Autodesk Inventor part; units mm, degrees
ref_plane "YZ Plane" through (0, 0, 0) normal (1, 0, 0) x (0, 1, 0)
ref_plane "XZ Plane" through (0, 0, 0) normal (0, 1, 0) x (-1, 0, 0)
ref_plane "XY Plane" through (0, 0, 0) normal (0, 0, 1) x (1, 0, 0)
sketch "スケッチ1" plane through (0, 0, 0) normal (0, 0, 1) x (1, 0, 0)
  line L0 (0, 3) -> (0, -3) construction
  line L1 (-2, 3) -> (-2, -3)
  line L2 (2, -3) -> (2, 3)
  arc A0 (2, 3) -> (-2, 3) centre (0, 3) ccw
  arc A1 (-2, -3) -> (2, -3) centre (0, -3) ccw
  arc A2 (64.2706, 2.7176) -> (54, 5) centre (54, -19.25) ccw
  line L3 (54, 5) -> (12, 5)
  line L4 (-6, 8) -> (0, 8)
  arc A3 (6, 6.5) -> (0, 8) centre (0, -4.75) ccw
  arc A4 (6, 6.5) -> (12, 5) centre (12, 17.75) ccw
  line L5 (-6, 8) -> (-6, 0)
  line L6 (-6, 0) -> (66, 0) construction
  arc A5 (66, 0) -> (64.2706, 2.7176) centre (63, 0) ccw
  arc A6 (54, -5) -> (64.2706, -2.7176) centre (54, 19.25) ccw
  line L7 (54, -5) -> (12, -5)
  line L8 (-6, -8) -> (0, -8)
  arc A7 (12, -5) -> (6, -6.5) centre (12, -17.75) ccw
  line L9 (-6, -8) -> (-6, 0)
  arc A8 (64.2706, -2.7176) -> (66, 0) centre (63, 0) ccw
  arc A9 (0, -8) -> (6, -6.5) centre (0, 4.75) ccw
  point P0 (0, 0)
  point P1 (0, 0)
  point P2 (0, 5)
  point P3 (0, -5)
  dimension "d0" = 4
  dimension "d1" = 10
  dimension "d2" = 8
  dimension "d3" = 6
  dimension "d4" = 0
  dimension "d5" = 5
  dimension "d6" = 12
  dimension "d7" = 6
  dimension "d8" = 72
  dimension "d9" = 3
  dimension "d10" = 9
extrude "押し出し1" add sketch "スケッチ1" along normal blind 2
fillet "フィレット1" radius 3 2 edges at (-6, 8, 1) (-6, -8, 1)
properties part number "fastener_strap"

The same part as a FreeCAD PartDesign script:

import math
import FreeCAD as App
import Part
import Sketcher
from FreeCAD import Vector
Q = App.Units.Quantity


def edges_at(feature, points):
    """Names of the edges that pass closest to the given points."""
    edges = feature.Shape.Edges
    near = lambda p: min(range(len(edges)), key=lambda i: edges[i].distToShape(Part.Vertex(*p))[0])
    return sorted({f"Edge{near(p) + 1}" for p in points})

doc = App.newDocument("Part")
body = doc.addObject("PartDesign::Body", "Body")

# Sketch on XY plane
sketch1 = body.newObject("Sketcher::SketchObject", "Sketch")
sketch1.AttachmentSupport = (doc.getObject("XY_Plane"), [""])
sketch1.MapMode = "FlatFace"
sketch1.addGeometry([
    Part.ArcOfCircle(Part.Circle(Vector(63, 0, 0), Vector(0, 0, 1), 3), math.radians(0), math.radians(65)),  # 0
    Part.ArcOfCircle(Part.Circle(Vector(54, -19.2, 0), Vector(0, 0, 1), 24.2), math.radians(65), math.radians(90)),  # 1
    Part.LineSegment(Vector(54, 5, 0), Vector(12, 5, 0)),  # 2
    Part.ArcOfCircle(Part.Circle(Vector(12, 17.8, 0), Vector(0, 0, 1), 12.8), math.radians(-118), math.radians(-90)),  # 3
    Part.ArcOfCircle(Part.Circle(Vector(0, -4.8, 0), Vector(0, 0, 1), 12.8), math.radians(62), math.radians(90)),  # 4
    Part.LineSegment(Vector(0, 8, 0), Vector(-6, 8, 0)),  # 5
    Part.LineSegment(Vector(-6, 8, 0), Vector(-6, -8, 0)),  # 6
    Part.LineSegment(Vector(-6, -8, 0), Vector(0, -8, 0)),  # 7
    Part.ArcOfCircle(Part.Circle(Vector(0, 4.8, 0), Vector(0, 0, 1), 12.8), math.radians(-90), math.radians(-62)),  # 8
    Part.ArcOfCircle(Part.Circle(Vector(12, -17.8, 0), Vector(0, 0, 1), 12.8), math.radians(90), math.radians(118)),  # 9
    Part.LineSegment(Vector(12, -5, 0), Vector(54, -5, 0)),  # 10
    Part.ArcOfCircle(Part.Circle(Vector(54, 19.2, 0), Vector(0, 0, 1), 24.2), math.radians(-90), math.radians(-65)),  # 11
    Part.ArcOfCircle(Part.Circle(Vector(63, 0, 0), Vector(0, 0, 1), 3), math.radians(-65), math.radians(0)),  # 12
    Part.LineSegment(Vector(-2, -3, 0), Vector(-2, 3, 0)),  # 13
    Part.ArcOfCircle(Part.Circle(Vector(0, 3, 0), Vector(0, 0, 1), 2), math.radians(0), math.radians(180)),  # 14
    Part.LineSegment(Vector(2, 3, 0), Vector(2, -3, 0)),  # 15
    Part.ArcOfCircle(Part.Circle(Vector(0, -3, 0), Vector(0, 0, 1), 2), math.radians(180), math.radians(360)),  # 16
], False)
sketch1.addConstraint([
    Sketcher.Constraint("Tangent", 0, 2, 1, 1),
    Sketcher.Constraint("Tangent", 1, 2, 2, 1),
    Sketcher.Constraint("Tangent", 2, 2, 3, 2),
    Sketcher.Constraint("Tangent", 3, 1, 4, 1),
    Sketcher.Constraint("Tangent", 4, 2, 5, 1),
    Sketcher.Constraint("Coincident", 5, 2, 6, 1),
    Sketcher.Constraint("Coincident", 6, 2, 7, 1),
    Sketcher.Constraint("Tangent", 7, 2, 8, 1),
    Sketcher.Constraint("Tangent", 8, 2, 9, 2),
    Sketcher.Constraint("Tangent", 9, 1, 10, 1),
    Sketcher.Constraint("Tangent", 10, 2, 11, 1),
    Sketcher.Constraint("Tangent", 11, 2, 12, 1),
    Sketcher.Constraint("Tangent", 12, 2, 0, 1),
    Sketcher.Constraint("Tangent", 13, 2, 14, 2),
    Sketcher.Constraint("Tangent", 14, 1, 15, 1),
    Sketcher.Constraint("Tangent", 15, 2, 16, 2),
    Sketcher.Constraint("Tangent", 16, 1, 13, 1),
    Sketcher.Constraint("Horizontal", 2),
    Sketcher.Constraint("Horizontal", 5),
    Sketcher.Constraint("Vertical", 6),
    Sketcher.Constraint("Horizontal", 7),
    Sketcher.Constraint("Horizontal", 10),
    Sketcher.Constraint("Vertical", 13),
    Sketcher.Constraint("Vertical", 15),
    Sketcher.Constraint("Equal", 3, 4),
    Sketcher.Constraint("Equal", 4, 8),
    Sketcher.Constraint("Equal", 8, 9),
    Sketcher.Constraint("Equal", 1, 11),
    Sketcher.Constraint("Equal", 0, 12),
    Sketcher.Constraint("Symmetric", 4, 3, 8, 3, -1, 1),
    Sketcher.Constraint("Symmetric", 14, 3, 16, 3, -1, 1),
    Sketcher.Constraint("Symmetric", 3, 3, 9, 3, -1),
    Sketcher.Constraint("PointOnObject", 0, 3, -1),
    Sketcher.Constraint("PointOnObject", 12, 2, -1),
    Sketcher.Constraint("Equal", 7, 13),
    Sketcher.Constraint("Radius", 0, Q("3 mm")),
    Sketcher.Constraint("Radius", 14, Q("2 mm")),
    Sketcher.Constraint("DistanceX", 5, 2, 5, 1, Q("6 mm")),
    Sketcher.Constraint("DistanceX", -1, 1, 3, 3, Q("12 mm")),
    Sketcher.Constraint("DistanceY", -1, 1, 1, 2, Q("5 mm")),
    Sketcher.Constraint("DistanceY", -1, 1, 4, 2, Q("8 mm")),
    Sketcher.Constraint("DistanceX", 1, 3, 0, 3, Q("9 mm")),
    Sketcher.Constraint("DistanceX", 2, 2, 2, 1, Q("42 mm")),
])
pad1 = body.newObject("PartDesign::Pad", "Pad")
pad1.Profile = sketch1
pad1.Length = 2
doc.recompute()

fillet = body.newObject("PartDesign::Fillet", "Fillet")
fillet.Base = (pad1, edges_at(pad1, [(-6, 8, 1), (-6, -8, 1)]))
fillet.Radius = 3

doc.recompute()
